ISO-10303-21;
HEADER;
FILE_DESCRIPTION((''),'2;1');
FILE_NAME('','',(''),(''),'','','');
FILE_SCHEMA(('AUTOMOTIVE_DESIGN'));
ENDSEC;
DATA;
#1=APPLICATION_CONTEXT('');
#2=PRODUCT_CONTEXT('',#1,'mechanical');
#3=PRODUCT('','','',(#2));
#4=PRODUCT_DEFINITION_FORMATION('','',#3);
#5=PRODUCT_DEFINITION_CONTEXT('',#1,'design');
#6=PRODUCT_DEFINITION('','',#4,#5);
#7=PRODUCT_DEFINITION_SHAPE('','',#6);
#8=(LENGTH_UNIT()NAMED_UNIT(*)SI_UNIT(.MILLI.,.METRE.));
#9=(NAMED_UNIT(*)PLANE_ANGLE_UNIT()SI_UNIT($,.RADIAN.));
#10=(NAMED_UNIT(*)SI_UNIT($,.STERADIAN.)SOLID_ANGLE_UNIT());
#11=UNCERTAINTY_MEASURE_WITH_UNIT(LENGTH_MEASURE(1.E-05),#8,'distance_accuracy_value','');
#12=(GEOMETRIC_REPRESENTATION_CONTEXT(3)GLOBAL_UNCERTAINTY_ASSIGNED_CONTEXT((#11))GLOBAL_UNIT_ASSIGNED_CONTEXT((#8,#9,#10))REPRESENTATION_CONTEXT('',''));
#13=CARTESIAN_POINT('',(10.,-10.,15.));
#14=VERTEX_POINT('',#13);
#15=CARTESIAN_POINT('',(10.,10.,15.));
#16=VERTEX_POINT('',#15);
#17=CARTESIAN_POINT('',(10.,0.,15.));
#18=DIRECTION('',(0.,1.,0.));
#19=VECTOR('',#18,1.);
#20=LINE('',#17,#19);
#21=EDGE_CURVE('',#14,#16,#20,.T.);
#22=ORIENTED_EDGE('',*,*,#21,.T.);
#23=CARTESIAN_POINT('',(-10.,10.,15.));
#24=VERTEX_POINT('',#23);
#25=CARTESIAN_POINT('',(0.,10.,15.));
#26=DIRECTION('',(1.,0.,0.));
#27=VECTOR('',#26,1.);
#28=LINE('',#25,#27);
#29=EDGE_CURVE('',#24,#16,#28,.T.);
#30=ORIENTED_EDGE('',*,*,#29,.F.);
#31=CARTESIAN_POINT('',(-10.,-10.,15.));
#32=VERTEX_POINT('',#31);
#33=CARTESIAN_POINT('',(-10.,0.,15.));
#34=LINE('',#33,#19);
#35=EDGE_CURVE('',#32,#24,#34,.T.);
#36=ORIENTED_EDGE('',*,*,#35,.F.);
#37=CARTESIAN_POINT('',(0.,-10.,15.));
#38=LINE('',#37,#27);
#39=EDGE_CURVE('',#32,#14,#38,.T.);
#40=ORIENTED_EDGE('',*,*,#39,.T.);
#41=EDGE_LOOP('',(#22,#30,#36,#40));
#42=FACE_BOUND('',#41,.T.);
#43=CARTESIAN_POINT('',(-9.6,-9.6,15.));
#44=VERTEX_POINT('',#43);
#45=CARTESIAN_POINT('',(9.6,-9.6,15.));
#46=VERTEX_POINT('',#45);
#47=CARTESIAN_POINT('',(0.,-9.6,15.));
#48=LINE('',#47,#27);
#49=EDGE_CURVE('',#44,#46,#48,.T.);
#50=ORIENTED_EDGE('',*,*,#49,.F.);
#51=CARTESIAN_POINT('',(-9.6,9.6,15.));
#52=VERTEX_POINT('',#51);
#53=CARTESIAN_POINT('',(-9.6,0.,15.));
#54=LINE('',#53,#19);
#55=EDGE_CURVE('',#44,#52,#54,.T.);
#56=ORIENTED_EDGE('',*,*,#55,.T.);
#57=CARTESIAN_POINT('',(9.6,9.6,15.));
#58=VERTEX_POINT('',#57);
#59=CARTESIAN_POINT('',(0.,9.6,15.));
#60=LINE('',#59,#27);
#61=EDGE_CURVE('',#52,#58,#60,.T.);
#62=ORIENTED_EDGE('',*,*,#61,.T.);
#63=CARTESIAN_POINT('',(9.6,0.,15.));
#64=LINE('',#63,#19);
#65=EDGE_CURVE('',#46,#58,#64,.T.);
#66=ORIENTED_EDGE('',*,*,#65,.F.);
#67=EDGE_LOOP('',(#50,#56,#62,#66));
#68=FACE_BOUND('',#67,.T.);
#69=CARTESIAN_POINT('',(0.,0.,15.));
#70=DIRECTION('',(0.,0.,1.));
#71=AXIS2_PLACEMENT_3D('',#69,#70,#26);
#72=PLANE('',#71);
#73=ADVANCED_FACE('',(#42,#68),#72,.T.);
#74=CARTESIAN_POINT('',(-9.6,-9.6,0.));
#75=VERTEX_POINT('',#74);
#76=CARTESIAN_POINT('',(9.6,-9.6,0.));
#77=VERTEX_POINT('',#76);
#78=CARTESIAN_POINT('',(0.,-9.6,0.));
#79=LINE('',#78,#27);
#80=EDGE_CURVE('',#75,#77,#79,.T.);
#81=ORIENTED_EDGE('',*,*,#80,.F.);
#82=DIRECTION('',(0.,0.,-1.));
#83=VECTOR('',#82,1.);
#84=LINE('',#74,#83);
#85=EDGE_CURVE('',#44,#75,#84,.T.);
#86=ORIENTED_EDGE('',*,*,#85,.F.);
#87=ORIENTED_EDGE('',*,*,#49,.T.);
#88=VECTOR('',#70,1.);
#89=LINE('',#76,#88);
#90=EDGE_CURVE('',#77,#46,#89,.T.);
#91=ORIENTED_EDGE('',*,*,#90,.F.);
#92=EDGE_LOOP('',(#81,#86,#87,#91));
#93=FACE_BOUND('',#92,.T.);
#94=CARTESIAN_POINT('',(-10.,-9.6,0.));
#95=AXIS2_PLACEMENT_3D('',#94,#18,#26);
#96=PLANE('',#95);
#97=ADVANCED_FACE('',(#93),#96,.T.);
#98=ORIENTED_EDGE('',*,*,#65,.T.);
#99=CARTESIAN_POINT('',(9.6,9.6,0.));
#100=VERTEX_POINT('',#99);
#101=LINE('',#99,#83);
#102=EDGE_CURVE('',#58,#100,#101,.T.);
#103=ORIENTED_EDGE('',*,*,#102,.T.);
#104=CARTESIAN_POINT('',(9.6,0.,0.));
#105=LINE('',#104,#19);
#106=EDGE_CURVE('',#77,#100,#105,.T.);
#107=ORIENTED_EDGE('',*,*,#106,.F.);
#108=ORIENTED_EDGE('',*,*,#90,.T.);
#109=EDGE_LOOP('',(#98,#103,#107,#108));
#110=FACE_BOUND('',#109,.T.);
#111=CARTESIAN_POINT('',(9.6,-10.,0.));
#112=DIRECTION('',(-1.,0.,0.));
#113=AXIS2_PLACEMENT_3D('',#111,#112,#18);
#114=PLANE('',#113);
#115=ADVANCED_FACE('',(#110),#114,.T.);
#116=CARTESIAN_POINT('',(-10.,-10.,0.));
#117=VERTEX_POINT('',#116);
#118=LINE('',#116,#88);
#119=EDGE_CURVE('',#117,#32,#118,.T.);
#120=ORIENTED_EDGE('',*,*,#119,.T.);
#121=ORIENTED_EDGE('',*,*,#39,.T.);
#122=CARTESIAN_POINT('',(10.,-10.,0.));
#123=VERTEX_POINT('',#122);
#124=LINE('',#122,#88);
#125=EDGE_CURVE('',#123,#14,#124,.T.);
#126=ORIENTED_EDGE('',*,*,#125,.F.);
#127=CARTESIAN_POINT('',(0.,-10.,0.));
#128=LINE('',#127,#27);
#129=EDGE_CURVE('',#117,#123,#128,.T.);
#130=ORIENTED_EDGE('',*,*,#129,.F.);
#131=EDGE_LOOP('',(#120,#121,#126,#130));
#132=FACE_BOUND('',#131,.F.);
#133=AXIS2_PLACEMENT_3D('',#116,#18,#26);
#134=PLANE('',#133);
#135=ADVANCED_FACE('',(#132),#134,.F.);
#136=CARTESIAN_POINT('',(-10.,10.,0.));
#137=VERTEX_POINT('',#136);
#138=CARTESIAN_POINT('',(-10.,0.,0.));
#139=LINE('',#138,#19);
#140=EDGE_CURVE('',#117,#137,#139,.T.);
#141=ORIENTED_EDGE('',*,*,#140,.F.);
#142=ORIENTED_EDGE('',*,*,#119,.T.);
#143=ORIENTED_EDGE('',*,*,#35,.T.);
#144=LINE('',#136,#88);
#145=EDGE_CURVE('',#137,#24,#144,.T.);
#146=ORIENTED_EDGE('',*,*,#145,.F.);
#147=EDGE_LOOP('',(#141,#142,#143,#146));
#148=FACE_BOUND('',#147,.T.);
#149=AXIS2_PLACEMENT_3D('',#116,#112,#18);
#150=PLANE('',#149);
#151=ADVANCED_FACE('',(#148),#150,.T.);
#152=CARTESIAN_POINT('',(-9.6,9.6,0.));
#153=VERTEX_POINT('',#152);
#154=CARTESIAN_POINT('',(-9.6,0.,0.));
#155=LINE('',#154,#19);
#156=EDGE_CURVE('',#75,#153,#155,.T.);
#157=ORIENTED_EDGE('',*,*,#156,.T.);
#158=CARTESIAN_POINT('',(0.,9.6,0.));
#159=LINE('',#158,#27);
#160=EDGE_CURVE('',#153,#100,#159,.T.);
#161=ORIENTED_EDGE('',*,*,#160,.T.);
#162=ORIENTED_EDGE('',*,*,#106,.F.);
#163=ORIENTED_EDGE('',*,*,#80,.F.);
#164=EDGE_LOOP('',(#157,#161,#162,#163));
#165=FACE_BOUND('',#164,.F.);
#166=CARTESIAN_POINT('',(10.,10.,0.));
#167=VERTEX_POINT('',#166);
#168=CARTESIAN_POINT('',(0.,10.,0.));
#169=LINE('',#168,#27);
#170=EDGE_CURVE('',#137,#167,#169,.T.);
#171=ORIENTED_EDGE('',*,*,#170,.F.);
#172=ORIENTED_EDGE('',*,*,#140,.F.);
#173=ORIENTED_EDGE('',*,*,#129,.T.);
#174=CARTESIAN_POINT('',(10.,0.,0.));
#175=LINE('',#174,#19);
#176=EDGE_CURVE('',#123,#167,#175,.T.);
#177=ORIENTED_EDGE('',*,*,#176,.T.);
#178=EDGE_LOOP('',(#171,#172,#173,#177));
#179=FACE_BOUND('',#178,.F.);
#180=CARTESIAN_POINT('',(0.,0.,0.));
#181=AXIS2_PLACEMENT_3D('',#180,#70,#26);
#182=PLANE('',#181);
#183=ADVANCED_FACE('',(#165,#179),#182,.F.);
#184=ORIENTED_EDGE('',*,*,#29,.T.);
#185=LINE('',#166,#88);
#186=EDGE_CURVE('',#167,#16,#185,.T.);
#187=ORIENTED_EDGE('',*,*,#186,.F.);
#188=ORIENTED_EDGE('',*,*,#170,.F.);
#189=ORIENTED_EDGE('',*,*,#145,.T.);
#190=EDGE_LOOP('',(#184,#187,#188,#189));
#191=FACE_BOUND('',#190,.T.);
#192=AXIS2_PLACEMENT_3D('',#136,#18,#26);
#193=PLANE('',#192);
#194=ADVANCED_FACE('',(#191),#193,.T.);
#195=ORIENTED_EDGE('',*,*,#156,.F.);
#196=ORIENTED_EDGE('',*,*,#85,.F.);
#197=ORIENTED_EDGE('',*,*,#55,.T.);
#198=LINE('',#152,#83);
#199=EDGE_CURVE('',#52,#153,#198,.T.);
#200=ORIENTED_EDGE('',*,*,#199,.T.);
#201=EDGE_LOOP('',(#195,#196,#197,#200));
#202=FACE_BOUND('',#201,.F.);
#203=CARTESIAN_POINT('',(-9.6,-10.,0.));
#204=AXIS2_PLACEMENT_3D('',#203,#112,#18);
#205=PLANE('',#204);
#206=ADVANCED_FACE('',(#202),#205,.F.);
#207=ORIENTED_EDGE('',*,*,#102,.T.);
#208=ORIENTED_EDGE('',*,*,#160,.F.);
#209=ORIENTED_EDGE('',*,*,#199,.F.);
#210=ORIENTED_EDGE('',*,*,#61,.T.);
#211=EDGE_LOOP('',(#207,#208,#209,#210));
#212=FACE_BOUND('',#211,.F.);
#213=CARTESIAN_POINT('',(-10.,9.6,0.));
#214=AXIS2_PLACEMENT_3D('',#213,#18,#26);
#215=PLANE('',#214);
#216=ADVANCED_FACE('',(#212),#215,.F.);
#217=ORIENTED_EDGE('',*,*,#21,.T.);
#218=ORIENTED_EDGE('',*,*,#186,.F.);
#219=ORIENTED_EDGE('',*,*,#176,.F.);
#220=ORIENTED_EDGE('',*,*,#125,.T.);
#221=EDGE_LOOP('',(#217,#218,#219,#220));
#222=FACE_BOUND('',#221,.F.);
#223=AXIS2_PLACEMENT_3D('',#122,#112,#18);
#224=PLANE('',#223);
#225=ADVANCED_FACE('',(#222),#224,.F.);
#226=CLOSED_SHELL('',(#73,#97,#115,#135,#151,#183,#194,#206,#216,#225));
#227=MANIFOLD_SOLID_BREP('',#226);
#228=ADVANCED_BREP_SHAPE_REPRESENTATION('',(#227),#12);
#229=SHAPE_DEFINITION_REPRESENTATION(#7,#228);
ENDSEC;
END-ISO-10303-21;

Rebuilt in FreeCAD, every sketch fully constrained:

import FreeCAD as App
import Part
import Sketcher


def faces_at(feature, points):
    """Names of the faces that lie closest to the given points."""
    faces = feature.Shape.Faces
    near = lambda p: min(range(len(faces)), key=lambda i: faces[i].distToShape(Part.Vertex(*p))[0])
    return sorted({f"Face{near(p) + 1}" for p in points})


def add_polygon(sketch, points):
    """Adds a closed chain of lines whose ends are joined by coincident constraints."""
    first, n = sketch.GeometryCount, len(points)
    for a, b in zip(points, points[1:] + points[:1]):
        sketch.addGeometry(Part.LineSegment(App.Vector(*a, 0), App.Vector(*b, 0)), False)
    for i in range(n):
        sketch.addConstraint(Sketcher.Constraint("Coincident", first + i, 2, first + (i + 1) % n, 1))

doc = App.newDocument("Part")
body = doc.addObject("PartDesign::Body", "Body")

sketch1 = body.newObject("Sketcher::SketchObject", "Sketch")
sketch1.AttachmentSupport = (doc.getObject("XY_Plane"), [""])
sketch1.MapMode = "FlatFace"
add_polygon(sketch1, [(-10, 10), (-10, -10), (10, -10), (10, 10)])
sketch1.addConstraint([
    Sketcher.Constraint("Vertical", 0),
    Sketcher.Constraint("Horizontal", 1),
    Sketcher.Constraint("Vertical", 2),
    Sketcher.Constraint("Horizontal", 3),
    Sketcher.Constraint("Symmetric", 0, 2, 2, 2, -1, 1),
    Sketcher.Constraint("Equal", 3, 0),
    Sketcher.Constraint("DistanceX", 1, 1, 1, 2, 20.0),
])
pad1 = body.newObject("PartDesign::Pad", "Pad")
pad1.Profile = sketch1
pad1.Length = 15
doc.recompute()

thickness = body.newObject("PartDesign::Thickness", "Thickness")
thickness.Base = (pad1, faces_at(pad1, [(0, 0, 15), (0, 0, 0)]))
thickness.Value = 0.4
thickness.Reversed = True
thickness.Join = "Arc"

doc.recompute()
